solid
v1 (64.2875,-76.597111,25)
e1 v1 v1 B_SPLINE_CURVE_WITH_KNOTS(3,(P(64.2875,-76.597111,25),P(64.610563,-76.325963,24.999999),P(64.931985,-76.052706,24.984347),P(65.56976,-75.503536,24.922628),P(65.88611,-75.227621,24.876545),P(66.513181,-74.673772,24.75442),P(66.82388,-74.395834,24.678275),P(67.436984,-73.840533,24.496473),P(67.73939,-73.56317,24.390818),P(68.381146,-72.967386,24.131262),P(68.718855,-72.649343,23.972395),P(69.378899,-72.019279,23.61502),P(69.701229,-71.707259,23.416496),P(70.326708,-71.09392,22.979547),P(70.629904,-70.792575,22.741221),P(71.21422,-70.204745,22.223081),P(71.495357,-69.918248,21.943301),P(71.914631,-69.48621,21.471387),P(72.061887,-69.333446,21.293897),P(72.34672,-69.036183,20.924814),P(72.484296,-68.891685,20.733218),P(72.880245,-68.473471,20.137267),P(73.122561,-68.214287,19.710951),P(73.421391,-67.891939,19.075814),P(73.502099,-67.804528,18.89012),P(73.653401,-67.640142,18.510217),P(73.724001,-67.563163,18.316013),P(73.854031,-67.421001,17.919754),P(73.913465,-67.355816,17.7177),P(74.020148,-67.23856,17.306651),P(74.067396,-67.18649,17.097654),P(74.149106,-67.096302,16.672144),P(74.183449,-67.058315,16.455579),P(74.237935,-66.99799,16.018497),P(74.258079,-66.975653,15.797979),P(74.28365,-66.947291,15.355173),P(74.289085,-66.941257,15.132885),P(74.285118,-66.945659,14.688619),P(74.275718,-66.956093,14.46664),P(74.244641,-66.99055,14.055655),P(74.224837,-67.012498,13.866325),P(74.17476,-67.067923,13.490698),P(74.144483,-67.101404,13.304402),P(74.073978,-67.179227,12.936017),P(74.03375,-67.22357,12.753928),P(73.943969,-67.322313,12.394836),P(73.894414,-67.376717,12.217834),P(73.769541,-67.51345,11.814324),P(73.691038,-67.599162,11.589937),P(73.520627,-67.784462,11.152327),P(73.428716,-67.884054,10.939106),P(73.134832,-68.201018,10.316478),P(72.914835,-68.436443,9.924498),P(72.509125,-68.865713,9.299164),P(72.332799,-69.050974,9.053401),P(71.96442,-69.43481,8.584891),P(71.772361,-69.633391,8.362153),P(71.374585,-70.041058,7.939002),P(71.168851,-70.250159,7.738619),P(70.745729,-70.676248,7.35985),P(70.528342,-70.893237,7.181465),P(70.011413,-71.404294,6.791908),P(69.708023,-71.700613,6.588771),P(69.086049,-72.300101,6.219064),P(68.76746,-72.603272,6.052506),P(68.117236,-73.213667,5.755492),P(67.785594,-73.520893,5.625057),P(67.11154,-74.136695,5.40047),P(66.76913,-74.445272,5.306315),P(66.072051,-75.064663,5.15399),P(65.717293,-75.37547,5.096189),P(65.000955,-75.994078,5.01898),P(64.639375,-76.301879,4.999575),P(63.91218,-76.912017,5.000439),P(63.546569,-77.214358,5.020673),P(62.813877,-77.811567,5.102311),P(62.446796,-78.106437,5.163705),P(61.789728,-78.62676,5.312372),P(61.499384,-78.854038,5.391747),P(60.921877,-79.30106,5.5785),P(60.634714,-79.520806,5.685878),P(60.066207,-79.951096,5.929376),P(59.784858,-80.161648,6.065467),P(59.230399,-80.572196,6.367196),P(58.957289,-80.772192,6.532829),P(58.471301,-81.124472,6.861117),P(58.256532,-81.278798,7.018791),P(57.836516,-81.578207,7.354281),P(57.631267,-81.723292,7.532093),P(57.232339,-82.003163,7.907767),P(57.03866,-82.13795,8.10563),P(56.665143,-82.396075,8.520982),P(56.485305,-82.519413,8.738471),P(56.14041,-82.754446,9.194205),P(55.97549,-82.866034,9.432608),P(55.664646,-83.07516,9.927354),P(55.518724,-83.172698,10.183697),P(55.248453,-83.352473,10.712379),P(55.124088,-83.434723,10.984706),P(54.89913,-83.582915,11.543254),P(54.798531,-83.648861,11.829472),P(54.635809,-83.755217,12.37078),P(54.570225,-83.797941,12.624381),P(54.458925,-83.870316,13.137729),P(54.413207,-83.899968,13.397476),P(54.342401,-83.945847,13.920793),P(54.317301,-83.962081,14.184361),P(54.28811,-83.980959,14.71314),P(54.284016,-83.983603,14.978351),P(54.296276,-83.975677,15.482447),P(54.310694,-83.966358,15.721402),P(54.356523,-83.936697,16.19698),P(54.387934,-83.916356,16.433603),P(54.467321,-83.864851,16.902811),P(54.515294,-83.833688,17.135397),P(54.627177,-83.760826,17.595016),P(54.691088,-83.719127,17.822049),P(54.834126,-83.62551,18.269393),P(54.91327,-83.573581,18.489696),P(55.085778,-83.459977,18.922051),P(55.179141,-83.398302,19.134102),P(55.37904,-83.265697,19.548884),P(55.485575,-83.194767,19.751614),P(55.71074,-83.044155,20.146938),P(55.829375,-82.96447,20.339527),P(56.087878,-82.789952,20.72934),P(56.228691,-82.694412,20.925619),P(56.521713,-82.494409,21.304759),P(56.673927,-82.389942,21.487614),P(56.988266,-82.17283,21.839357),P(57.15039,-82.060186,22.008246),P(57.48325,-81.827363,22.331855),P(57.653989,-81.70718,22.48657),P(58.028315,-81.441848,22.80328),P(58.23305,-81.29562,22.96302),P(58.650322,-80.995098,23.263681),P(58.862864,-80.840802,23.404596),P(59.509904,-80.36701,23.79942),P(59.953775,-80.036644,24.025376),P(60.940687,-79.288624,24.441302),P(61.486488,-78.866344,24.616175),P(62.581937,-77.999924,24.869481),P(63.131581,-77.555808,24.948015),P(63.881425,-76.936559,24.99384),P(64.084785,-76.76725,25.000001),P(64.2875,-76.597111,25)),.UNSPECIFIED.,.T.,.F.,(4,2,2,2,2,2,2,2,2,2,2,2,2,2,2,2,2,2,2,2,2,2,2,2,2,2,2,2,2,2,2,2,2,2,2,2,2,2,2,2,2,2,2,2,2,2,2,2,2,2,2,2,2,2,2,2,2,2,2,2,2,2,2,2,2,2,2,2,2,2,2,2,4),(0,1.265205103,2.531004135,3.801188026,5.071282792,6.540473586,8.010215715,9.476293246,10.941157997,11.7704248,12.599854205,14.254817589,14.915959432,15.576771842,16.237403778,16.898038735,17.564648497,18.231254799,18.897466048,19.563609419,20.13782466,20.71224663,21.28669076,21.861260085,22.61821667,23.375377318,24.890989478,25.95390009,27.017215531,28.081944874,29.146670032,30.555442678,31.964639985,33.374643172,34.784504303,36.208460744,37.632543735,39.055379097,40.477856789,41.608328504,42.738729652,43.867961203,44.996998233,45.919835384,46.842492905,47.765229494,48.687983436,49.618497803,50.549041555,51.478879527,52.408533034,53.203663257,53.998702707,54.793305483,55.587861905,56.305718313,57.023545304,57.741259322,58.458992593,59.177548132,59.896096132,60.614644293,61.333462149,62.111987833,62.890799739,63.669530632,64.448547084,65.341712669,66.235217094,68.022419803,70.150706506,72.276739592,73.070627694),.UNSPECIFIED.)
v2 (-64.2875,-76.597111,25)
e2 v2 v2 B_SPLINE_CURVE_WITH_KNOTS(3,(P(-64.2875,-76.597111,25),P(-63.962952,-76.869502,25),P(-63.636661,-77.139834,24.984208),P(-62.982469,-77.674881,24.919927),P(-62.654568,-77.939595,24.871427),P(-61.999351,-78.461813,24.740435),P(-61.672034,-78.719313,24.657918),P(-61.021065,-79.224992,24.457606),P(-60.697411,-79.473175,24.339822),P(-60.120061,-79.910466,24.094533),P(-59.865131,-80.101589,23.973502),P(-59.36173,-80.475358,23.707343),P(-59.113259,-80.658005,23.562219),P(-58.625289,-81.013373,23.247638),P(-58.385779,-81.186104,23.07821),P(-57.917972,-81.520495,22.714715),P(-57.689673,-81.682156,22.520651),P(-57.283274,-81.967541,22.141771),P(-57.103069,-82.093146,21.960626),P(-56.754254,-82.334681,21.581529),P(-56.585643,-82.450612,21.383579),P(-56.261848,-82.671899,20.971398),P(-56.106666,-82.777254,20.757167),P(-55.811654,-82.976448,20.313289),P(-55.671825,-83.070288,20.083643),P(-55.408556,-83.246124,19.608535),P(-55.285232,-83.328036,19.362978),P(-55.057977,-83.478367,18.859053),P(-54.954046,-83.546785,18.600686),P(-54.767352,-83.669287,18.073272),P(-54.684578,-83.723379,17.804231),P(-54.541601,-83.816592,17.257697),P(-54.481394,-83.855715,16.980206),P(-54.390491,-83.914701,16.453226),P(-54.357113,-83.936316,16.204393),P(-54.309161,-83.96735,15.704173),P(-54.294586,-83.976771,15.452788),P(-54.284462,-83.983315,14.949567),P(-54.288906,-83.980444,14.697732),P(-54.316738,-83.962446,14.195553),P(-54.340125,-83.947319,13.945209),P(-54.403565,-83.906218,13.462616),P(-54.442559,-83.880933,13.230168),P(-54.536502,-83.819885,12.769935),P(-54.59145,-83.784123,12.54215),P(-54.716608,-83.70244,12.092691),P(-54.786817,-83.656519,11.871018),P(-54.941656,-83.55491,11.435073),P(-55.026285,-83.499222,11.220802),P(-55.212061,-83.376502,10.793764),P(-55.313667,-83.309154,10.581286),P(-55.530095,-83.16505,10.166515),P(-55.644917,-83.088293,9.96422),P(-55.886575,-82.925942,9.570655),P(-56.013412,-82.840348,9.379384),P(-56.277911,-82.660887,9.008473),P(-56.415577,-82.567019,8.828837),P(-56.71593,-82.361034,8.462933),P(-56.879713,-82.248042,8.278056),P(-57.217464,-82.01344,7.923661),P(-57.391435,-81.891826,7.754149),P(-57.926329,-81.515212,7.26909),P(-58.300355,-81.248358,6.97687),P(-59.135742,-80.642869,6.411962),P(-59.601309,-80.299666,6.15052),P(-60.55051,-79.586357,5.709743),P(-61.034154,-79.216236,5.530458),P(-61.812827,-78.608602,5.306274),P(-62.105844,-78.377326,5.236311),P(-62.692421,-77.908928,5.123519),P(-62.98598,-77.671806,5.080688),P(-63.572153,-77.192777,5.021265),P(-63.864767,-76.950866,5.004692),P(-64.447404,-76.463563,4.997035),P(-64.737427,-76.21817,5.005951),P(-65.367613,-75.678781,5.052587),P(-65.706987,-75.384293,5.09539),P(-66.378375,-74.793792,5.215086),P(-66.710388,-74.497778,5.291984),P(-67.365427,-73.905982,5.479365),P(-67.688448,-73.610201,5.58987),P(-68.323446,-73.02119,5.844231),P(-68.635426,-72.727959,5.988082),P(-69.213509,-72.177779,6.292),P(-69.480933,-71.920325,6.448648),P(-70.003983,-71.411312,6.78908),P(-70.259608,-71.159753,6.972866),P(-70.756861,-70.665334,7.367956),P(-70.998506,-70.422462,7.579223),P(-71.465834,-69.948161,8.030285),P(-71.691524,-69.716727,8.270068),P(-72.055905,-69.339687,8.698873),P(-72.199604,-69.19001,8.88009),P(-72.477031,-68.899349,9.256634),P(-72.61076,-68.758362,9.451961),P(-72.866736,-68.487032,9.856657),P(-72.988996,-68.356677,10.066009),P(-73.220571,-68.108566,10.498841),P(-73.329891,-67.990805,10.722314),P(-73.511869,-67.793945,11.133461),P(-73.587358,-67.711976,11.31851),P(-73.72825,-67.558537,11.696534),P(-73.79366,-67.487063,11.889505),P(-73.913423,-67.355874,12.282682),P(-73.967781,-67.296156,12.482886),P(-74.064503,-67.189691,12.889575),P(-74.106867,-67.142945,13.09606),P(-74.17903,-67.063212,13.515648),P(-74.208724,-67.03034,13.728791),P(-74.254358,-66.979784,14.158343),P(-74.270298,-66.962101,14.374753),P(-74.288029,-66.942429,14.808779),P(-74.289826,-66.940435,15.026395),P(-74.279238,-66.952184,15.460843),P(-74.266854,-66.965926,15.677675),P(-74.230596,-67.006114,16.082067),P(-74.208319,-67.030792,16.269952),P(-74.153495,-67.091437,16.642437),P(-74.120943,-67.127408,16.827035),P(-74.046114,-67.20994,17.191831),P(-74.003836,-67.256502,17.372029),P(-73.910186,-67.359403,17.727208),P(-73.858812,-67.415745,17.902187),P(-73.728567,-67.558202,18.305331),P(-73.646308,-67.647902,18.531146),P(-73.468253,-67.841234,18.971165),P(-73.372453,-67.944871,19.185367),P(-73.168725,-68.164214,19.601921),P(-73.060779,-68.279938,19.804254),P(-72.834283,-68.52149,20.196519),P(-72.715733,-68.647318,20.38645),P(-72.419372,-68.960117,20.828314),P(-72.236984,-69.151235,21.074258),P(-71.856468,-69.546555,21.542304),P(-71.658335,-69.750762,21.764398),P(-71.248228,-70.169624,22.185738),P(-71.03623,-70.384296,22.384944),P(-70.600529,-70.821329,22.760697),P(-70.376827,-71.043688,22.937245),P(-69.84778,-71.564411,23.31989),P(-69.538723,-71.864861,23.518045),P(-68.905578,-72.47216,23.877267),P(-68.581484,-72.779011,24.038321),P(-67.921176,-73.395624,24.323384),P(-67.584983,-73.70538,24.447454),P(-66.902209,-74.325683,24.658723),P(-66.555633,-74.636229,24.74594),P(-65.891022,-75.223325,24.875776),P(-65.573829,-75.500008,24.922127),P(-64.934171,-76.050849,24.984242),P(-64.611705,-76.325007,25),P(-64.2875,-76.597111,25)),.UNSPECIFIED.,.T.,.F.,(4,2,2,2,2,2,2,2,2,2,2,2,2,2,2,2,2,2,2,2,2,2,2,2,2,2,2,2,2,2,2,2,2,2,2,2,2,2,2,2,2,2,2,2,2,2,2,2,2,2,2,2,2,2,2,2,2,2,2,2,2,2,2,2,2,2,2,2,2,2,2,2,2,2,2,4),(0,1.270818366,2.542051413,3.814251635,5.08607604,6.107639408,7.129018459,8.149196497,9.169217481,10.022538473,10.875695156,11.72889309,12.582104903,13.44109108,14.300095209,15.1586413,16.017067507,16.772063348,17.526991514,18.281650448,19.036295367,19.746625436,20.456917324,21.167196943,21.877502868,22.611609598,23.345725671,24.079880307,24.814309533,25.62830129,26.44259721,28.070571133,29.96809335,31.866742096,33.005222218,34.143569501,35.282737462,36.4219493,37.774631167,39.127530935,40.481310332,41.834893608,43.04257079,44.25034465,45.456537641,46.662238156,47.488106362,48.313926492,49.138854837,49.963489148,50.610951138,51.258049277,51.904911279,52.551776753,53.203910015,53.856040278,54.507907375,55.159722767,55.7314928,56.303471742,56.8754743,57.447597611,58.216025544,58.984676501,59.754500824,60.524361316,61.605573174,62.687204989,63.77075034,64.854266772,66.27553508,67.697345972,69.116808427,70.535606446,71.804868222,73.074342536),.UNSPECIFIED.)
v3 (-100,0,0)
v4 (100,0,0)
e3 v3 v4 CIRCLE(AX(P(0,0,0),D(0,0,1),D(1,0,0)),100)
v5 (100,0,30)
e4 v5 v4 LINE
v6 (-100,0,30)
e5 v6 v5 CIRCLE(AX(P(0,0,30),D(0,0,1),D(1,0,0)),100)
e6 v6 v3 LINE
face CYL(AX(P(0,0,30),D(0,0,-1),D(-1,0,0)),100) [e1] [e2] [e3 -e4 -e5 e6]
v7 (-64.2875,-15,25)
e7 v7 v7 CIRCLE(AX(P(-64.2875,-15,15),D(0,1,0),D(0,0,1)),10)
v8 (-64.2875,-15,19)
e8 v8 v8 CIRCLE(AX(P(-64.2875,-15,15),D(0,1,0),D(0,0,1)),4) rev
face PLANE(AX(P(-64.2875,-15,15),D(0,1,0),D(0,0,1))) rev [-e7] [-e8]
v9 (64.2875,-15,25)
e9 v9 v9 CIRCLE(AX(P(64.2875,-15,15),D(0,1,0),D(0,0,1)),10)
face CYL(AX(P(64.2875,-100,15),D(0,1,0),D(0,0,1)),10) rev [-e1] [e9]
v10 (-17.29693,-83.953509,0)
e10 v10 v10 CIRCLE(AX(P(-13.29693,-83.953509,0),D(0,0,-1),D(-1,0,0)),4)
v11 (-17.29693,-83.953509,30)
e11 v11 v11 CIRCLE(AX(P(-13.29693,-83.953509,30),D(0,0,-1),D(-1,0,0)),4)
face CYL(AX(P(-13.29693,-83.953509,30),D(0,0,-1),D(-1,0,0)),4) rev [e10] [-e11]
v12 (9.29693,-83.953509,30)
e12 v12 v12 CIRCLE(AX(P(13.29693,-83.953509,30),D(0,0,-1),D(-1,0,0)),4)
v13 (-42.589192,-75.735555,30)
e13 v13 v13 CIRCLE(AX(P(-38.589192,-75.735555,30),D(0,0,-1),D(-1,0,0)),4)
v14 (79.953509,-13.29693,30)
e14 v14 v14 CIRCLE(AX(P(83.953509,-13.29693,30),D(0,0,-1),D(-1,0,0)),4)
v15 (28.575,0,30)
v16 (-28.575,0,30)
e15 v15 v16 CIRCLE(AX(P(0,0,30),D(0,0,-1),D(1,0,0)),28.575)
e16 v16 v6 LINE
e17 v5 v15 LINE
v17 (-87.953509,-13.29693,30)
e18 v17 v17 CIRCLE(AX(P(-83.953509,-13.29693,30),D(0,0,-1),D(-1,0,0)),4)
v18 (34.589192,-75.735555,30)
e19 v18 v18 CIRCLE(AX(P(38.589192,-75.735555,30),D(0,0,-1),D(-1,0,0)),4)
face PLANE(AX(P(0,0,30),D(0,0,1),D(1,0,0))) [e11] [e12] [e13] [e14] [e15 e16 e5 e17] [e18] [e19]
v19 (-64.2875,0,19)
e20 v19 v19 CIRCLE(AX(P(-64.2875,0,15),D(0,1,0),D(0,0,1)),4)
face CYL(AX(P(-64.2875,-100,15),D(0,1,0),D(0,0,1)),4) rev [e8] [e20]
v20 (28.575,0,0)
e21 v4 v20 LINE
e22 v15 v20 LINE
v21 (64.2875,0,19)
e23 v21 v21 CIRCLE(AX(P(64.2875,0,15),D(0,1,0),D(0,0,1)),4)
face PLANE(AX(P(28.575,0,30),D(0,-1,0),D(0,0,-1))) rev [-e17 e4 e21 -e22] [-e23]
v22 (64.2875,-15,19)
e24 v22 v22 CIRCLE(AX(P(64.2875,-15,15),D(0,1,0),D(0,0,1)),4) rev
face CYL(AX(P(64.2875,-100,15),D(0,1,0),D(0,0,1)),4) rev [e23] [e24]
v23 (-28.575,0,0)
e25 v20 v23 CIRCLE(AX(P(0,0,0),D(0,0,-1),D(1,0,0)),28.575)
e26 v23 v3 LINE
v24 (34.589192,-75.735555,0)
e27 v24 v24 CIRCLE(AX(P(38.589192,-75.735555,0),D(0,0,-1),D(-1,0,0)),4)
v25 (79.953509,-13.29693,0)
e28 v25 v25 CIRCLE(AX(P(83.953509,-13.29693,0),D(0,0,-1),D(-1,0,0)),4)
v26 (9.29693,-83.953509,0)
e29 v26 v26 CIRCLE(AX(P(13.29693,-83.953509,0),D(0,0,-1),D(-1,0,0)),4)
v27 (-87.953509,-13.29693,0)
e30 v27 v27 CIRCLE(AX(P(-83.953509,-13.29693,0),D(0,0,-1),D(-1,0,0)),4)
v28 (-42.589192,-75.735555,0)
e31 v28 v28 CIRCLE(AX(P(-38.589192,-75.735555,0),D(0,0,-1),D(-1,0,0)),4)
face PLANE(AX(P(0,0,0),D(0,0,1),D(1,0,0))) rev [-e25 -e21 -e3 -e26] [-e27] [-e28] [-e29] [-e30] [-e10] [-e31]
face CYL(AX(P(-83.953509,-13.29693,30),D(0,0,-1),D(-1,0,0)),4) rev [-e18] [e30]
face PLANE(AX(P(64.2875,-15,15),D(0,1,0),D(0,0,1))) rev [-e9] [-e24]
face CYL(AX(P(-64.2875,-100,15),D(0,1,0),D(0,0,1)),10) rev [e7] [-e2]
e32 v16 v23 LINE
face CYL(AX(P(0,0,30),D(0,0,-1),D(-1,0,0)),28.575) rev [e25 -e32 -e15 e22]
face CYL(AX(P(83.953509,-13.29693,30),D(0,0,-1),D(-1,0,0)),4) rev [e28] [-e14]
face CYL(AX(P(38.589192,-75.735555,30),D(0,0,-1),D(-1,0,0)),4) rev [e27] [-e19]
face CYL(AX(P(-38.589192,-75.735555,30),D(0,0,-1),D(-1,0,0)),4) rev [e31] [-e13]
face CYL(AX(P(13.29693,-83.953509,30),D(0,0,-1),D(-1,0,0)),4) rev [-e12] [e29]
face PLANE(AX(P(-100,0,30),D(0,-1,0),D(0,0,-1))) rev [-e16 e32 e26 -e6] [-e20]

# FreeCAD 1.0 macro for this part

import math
import FreeCAD as App
import Part
import Sketcher

V = App.Vector
Q = App.Units.Quantity

doc = App.newDocument("Part")
params = doc.addObject("Spreadsheet::Sheet", "Params")
for row, (alias, value) in enumerate([
    ("sketch1_radius", "100 mm"),
    ("pad1_length", "30 mm"),
    ("sketch2_diameter", "8 mm"),
    ("sketch3_diameter", "20 mm"),
    ("sketch4_radius", "4 mm"),
], start=1):
    params.set(f"A{row}", alias)
    params.set(f"B{row}", "=" + value)
    params.setAlias(f"B{row}", alias)

body = doc.addObject("PartDesign::Body", "Body")

# Sketch on XY plane
sketch1 = body.newObject("Sketcher::SketchObject", "Sketch")
sketch1.AttachmentSupport = (doc.getObject("XY_Plane"), [""])
sketch1.MapMode = "FlatFace"
sketch1.addGeometry([
    Part.LineSegment(V(-29, 0, 0), V(-100, 0, 0)),
    Part.ArcOfCircle(Part.Circle(V(0, 0, 0), V(0, 0, 1), 100), math.radians(180), math.radians(360)),
    Part.LineSegment(V(100, 0, 0), V(29, 0, 0)),
    Part.ArcOfCircle(Part.Circle(V(0, 0, 0), V(0, 0, 1), 29), math.radians(180), math.radians(360)),
], False)
sketch1.addConstraint([
    Sketcher.Constraint("Coincident", 0, 2, 1, 1),
    Sketcher.Constraint("Coincident", 1, 2, 2, 1),
    Sketcher.Constraint("Coincident", 2, 2, 3, 2),
    Sketcher.Constraint("Coincident", 3, 1, 0, 1),
    Sketcher.Constraint("Horizontal", 0),
    Sketcher.Constraint("Horizontal", 2),
    Sketcher.Constraint("Coincident", 1, 3, -1, 1),
    Sketcher.Constraint("Coincident", 3, 3, -1, 1),
    Sketcher.Constraint("PointOnObject", 0, 2, -1),
    Sketcher.Constraint("PointOnObject", 1, 2, -1),
    Sketcher.Constraint("Radius", 1, Q("100 mm")),
    Sketcher.Constraint("Radius", 3, Q("28.575 mm")),
])
sketch1.setExpression("Constraints[10]", "Params.sketch1_radius")
pad1 = body.newObject("PartDesign::Pad", "Pad")
pad1.Profile = sketch1
pad1.setExpression("Length", "Params.pad1_length")

# Sketch on XZ plane
sketch2 = body.newObject("Sketcher::SketchObject", "Sketch001")
sketch2.AttachmentSupport = (doc.getObject("XZ_Plane"), [""])
sketch2.MapMode = "FlatFace"
sketch2.addGeometry([
    Part.Circle(V(-64.3, 15, 0), V(0, 0, 1), 4),
    Part.Circle(V(64.3, 15, 0), V(0, 0, 1), 4),
], False)
sketch2.addConstraint([
    Sketcher.Constraint("Equal", 0, 1),
    Sketcher.Constraint("Symmetric", 0, 3, 1, 3, -2),
    Sketcher.Constraint("Diameter", 0, Q("8 mm")),
    Sketcher.Constraint("DistanceY", -1, 1, 0, 3, Q("15 mm")),
    Sketcher.Constraint("DistanceX", 0, 3, 1, 3, Q("128.575 mm")),
])
sketch2.setExpression("Constraints[2]", "Params.sketch2_diameter")
pocket1 = body.newObject("PartDesign::Pocket", "Pocket")
pocket1.Profile = sketch2
pocket1.Type = "ThroughAll"
pocket1.Reversed = True

# Sketch on XZ plane
sketch3 = body.newObject("Sketcher::SketchObject", "Sketch002")
sketch3.AttachmentSupport = (doc.getObject("XZ_Plane"), [""])
sketch3.MapMode = "FlatFace"
sketch3.AttachmentOffset = App.Placement(V(0, 0, 15), App.Rotation())
sketch3.addGeometry([
    Part.Circle(V(64, 15, 0), V(0, 0, 1), 10),
    Part.Circle(V(-64, 15, 0), V(0, 0, 1), 10),
], False)
sketch3.addConstraint([
    Sketcher.Constraint("Equal", 0, 1),
    Sketcher.Constraint("Symmetric", 0, 3, 1, 3, -2),
    Sketcher.Constraint("Diameter", 0, Q("20 mm")),
    Sketcher.Constraint("DistanceY", -1, 1, 0, 3, Q("15 mm")),
    Sketcher.Constraint("DistanceX", 1, 3, 0, 3, Q("128.575 mm")),
])
sketch3.setExpression("Constraints[2]", "Params.sketch3_diameter")
pocket2 = body.newObject("PartDesign::Pocket", "Pocket001")
pocket2.Profile = sketch3
pocket2.Type = "ThroughAll"
pocket2.Reversed = True

# Sketch on XY plane
sketch4 = body.newObject("Sketcher::SketchObject", "Sketch003")
sketch4.AttachmentSupport = (doc.getObject("XY_Plane"), [""])
sketch4.MapMode = "FlatFace"
sketch4.addGeometry([
    Part.ArcOfCircle(Part.Circle(V(-84, -13.3, 0), V(0, 0, 1), 4), math.radians(-80), math.radians(98)),  # 0
    Part.ArcOfCircle(Part.Circle(V(-84, -13.3, 0), V(0, 0, 1), 4), math.radians(180), math.radians(280)),  # 1
    Part.ArcOfCircle(Part.Circle(V(-84, -13.3, 0), V(0, 0, 1), 4), math.radians(98), math.radians(180)),  # 2
    Part.ArcOfCircle(Part.Circle(V(-38.6, -75.7, 0), V(0, 0, 1), 4), math.radians(-26), math.radians(152)),  # 3
    Part.ArcOfCircle(Part.Circle(V(-38.6, -75.7, 0), V(0, 0, 1), 4), math.radians(180), math.radians(334)),  # 4
    Part.ArcOfCircle(Part.Circle(V(-38.6, -75.7, 0), V(0, 0, 1), 4), math.radians(152), math.radians(180)),  # 5
    Part.ArcOfCircle(Part.Circle(V(-13.3, -84, 0), V(0, 0, 1), 4), math.radians(-8), math.radians(170)),  # 6
    Part.ArcOfCircle(Part.Circle(V(-13.3, -84, 0), V(0, 0, 1), 4), math.radians(180), math.radians(352)),  # 7
    Part.ArcOfCircle(Part.Circle(V(-13.3, -84, 0), V(0, 0, 1), 4), math.radians(169.65), math.radians(180)),  # 8
    Part.ArcOfCircle(Part.Circle(V(13.3, -84, 0), V(0, 0, 1), 4), math.radians(-180), math.radians(-172.35)),  # 9
    Part.ArcOfCircle(Part.Circle(V(13.3, -84, 0), V(0, 0, 1), 4), math.radians(10), math.radians(180)),  # 10
    Part.ArcOfCircle(Part.Circle(V(13.3, -84, 0), V(0, 0, 1), 4), math.radians(-172), math.radians(10)),  # 11
    Part.ArcOfCircle(Part.Circle(V(38.6, -75.7, 0), V(0, 0, 1), 4), math.radians(28), math.radians(117)),  # 12
    Part.ArcOfCircle(Part.Circle(V(38.6, -75.7, 0), V(0, 0, 1), 4), math.radians(-154), math.radians(28)),  # 13
    Part.ArcOfCircle(Part.Circle(V(38.6, -75.7, 0), V(0, 0, 1), 4), math.radians(180), math.radians(206)),  # 14
    Part.ArcOfCircle(Part.Circle(V(38.6, -75.7, 0), V(0, 0, 1), 4), math.radians(117), math.radians(180)),  # 15
    Part.ArcOfCircle(Part.Circle(V(84, -13.3, 0), V(0, 0, 1), 4), math.radians(-100), math.radians(82)),  # 16
    Part.ArcOfCircle(Part.Circle(V(84, -13.3, 0), V(0, 0, 1), 4), math.radians(180), math.radians(260)),  # 17
    Part.ArcOfCircle(Part.Circle(V(84, -13.3, 0), V(0, 0, 1), 4), math.radians(82), math.radians(180)),  # 18
], False)
sketch4.addConstraint([
    Sketcher.Constraint("Tangent", 0, 1, 1, 2),
    Sketcher.Constraint("Tangent", 1, 1, 2, 2),
    Sketcher.Constraint("Tangent", 2, 1, 0, 2),
    Sketcher.Constraint("Tangent", 3, 1, 4, 2),
    Sketcher.Constraint("Tangent", 4, 1, 5, 2),
    Sketcher.Constraint("Tangent", 5, 1, 3, 2),
    Sketcher.Constraint("Tangent", 6, 1, 7, 2),
    Sketcher.Constraint("Tangent", 7, 1, 8, 2),
    Sketcher.Constraint("Tangent", 8, 1, 6, 2),
    Sketcher.Constraint("Tangent", 9, 1, 10, 2),
    Sketcher.Constraint("Tangent", 10, 1, 11, 2),
    Sketcher.Constraint("Tangent", 11, 1, 9, 2),
    Sketcher.Constraint("Tangent", 12, 1, 13, 2),
    Sketcher.Constraint("Tangent", 13, 1, 14, 2),
    Sketcher.Constraint("Tangent", 14, 1, 15, 2),
    Sketcher.Constraint("Tangent", 15, 1, 12, 2),
    Sketcher.Constraint("Tangent", 16, 1, 17, 2),
    Sketcher.Constraint("Tangent", 17, 1, 18, 2),
    Sketcher.Constraint("Tangent", 18, 1, 16, 2),
    Sketcher.Constraint("Equal", 2, 3),
    Sketcher.Constraint("Equal", 5, 6),
    Sketcher.Constraint("Equal", 8, 9),
    Sketcher.Constraint("Equal", 11, 12),
    Sketcher.Constraint("Equal", 12, 13),
    Sketcher.Constraint("Equal", 15, 16),
    Sketcher.Constraint("Symmetric", 6, 3, 9, 3, -2),
    Sketcher.Constraint("Symmetric", 3, 3, 12, 3, -2),
    Sketcher.Constraint("Symmetric", 0, 3, 16, 3, -2),
    Sketcher.Constraint("Horizontal", 18, 3, 1, 1),
    Sketcher.Constraint("Horizontal", 15, 3, 4, 1),
    Sketcher.Constraint("Horizontal", 11, 3, 7, 1),
    Sketcher.Constraint("Horizontal", 7, 1, 9, 1),
    Sketcher.Constraint("Horizontal", 8, 1, 10, 1),
    Sketcher.Constraint("Horizontal", 6, 1, 11, 1),
    Sketcher.Constraint("Horizontal", 5, 1, 12, 1),
    Sketcher.Constraint("Horizontal", 3, 1, 13, 1),
    Sketcher.Constraint("Horizontal", 4, 1, 14, 1),
    Sketcher.Constraint("Horizontal", 0, 1, 16, 1),
    Sketcher.Constraint("Horizontal", 1, 1, 17, 1),
    Sketcher.Constraint("Horizontal", 2, 1, 18, 1),
    Sketcher.Constraint("Radius", 0, Q("4 mm")),
    Sketcher.Constraint("DistanceY", 3, 1, 5, 3, Q("1.7316 mm")),
    Sketcher.Constraint("DistanceX", 0, 3, -1, 1, Q("83.953509 mm")),
    Sketcher.Constraint("DistanceY", 0, 3, -1, 1, Q("13.29693 mm")),
    Sketcher.Constraint("DistanceX", 6, 3, -1, 1, Q("13.29693 mm")),
    Sketcher.Constraint("DistanceY", 6, 3, -1, 1, Q("83.953509 mm")),
    Sketcher.Constraint("DistanceX", -1, 1, 15, 1, Q("36.77323 mm")),
    Sketcher.Constraint("DistanceY", 15, 1, -1, 1, Q("72.171528 mm")),
    Sketcher.Constraint("DistanceX", 5, 3, 9, 3, Q("51.886122 mm")),
    Sketcher.Constraint("DistanceY", 3, 3, 0, 1, Q("58.503689 mm")),
    Sketcher.Constraint("DistanceX", 2, 1, 0, 1, Q("1.251129 mm")),
    Sketcher.Constraint("DistanceX", 4, 1, 5, 1, Q("0.479689 mm")),
    Sketcher.Constraint("DistanceX", 8, 1, 6, 1, Q("7.899319 mm")),
    Sketcher.Constraint("DistanceY", 6, 1, 8, 1, Q("1.251129 mm")),
])
sketch4.setExpression("Constraints[40]", "Params.sketch4_radius")
pocket3 = body.newObject("PartDesign::Pocket", "Pocket002")
pocket3.Profile = sketch4
pocket3.Type = "ThroughAll"
pocket3.Reversed = True

doc.recompute()
